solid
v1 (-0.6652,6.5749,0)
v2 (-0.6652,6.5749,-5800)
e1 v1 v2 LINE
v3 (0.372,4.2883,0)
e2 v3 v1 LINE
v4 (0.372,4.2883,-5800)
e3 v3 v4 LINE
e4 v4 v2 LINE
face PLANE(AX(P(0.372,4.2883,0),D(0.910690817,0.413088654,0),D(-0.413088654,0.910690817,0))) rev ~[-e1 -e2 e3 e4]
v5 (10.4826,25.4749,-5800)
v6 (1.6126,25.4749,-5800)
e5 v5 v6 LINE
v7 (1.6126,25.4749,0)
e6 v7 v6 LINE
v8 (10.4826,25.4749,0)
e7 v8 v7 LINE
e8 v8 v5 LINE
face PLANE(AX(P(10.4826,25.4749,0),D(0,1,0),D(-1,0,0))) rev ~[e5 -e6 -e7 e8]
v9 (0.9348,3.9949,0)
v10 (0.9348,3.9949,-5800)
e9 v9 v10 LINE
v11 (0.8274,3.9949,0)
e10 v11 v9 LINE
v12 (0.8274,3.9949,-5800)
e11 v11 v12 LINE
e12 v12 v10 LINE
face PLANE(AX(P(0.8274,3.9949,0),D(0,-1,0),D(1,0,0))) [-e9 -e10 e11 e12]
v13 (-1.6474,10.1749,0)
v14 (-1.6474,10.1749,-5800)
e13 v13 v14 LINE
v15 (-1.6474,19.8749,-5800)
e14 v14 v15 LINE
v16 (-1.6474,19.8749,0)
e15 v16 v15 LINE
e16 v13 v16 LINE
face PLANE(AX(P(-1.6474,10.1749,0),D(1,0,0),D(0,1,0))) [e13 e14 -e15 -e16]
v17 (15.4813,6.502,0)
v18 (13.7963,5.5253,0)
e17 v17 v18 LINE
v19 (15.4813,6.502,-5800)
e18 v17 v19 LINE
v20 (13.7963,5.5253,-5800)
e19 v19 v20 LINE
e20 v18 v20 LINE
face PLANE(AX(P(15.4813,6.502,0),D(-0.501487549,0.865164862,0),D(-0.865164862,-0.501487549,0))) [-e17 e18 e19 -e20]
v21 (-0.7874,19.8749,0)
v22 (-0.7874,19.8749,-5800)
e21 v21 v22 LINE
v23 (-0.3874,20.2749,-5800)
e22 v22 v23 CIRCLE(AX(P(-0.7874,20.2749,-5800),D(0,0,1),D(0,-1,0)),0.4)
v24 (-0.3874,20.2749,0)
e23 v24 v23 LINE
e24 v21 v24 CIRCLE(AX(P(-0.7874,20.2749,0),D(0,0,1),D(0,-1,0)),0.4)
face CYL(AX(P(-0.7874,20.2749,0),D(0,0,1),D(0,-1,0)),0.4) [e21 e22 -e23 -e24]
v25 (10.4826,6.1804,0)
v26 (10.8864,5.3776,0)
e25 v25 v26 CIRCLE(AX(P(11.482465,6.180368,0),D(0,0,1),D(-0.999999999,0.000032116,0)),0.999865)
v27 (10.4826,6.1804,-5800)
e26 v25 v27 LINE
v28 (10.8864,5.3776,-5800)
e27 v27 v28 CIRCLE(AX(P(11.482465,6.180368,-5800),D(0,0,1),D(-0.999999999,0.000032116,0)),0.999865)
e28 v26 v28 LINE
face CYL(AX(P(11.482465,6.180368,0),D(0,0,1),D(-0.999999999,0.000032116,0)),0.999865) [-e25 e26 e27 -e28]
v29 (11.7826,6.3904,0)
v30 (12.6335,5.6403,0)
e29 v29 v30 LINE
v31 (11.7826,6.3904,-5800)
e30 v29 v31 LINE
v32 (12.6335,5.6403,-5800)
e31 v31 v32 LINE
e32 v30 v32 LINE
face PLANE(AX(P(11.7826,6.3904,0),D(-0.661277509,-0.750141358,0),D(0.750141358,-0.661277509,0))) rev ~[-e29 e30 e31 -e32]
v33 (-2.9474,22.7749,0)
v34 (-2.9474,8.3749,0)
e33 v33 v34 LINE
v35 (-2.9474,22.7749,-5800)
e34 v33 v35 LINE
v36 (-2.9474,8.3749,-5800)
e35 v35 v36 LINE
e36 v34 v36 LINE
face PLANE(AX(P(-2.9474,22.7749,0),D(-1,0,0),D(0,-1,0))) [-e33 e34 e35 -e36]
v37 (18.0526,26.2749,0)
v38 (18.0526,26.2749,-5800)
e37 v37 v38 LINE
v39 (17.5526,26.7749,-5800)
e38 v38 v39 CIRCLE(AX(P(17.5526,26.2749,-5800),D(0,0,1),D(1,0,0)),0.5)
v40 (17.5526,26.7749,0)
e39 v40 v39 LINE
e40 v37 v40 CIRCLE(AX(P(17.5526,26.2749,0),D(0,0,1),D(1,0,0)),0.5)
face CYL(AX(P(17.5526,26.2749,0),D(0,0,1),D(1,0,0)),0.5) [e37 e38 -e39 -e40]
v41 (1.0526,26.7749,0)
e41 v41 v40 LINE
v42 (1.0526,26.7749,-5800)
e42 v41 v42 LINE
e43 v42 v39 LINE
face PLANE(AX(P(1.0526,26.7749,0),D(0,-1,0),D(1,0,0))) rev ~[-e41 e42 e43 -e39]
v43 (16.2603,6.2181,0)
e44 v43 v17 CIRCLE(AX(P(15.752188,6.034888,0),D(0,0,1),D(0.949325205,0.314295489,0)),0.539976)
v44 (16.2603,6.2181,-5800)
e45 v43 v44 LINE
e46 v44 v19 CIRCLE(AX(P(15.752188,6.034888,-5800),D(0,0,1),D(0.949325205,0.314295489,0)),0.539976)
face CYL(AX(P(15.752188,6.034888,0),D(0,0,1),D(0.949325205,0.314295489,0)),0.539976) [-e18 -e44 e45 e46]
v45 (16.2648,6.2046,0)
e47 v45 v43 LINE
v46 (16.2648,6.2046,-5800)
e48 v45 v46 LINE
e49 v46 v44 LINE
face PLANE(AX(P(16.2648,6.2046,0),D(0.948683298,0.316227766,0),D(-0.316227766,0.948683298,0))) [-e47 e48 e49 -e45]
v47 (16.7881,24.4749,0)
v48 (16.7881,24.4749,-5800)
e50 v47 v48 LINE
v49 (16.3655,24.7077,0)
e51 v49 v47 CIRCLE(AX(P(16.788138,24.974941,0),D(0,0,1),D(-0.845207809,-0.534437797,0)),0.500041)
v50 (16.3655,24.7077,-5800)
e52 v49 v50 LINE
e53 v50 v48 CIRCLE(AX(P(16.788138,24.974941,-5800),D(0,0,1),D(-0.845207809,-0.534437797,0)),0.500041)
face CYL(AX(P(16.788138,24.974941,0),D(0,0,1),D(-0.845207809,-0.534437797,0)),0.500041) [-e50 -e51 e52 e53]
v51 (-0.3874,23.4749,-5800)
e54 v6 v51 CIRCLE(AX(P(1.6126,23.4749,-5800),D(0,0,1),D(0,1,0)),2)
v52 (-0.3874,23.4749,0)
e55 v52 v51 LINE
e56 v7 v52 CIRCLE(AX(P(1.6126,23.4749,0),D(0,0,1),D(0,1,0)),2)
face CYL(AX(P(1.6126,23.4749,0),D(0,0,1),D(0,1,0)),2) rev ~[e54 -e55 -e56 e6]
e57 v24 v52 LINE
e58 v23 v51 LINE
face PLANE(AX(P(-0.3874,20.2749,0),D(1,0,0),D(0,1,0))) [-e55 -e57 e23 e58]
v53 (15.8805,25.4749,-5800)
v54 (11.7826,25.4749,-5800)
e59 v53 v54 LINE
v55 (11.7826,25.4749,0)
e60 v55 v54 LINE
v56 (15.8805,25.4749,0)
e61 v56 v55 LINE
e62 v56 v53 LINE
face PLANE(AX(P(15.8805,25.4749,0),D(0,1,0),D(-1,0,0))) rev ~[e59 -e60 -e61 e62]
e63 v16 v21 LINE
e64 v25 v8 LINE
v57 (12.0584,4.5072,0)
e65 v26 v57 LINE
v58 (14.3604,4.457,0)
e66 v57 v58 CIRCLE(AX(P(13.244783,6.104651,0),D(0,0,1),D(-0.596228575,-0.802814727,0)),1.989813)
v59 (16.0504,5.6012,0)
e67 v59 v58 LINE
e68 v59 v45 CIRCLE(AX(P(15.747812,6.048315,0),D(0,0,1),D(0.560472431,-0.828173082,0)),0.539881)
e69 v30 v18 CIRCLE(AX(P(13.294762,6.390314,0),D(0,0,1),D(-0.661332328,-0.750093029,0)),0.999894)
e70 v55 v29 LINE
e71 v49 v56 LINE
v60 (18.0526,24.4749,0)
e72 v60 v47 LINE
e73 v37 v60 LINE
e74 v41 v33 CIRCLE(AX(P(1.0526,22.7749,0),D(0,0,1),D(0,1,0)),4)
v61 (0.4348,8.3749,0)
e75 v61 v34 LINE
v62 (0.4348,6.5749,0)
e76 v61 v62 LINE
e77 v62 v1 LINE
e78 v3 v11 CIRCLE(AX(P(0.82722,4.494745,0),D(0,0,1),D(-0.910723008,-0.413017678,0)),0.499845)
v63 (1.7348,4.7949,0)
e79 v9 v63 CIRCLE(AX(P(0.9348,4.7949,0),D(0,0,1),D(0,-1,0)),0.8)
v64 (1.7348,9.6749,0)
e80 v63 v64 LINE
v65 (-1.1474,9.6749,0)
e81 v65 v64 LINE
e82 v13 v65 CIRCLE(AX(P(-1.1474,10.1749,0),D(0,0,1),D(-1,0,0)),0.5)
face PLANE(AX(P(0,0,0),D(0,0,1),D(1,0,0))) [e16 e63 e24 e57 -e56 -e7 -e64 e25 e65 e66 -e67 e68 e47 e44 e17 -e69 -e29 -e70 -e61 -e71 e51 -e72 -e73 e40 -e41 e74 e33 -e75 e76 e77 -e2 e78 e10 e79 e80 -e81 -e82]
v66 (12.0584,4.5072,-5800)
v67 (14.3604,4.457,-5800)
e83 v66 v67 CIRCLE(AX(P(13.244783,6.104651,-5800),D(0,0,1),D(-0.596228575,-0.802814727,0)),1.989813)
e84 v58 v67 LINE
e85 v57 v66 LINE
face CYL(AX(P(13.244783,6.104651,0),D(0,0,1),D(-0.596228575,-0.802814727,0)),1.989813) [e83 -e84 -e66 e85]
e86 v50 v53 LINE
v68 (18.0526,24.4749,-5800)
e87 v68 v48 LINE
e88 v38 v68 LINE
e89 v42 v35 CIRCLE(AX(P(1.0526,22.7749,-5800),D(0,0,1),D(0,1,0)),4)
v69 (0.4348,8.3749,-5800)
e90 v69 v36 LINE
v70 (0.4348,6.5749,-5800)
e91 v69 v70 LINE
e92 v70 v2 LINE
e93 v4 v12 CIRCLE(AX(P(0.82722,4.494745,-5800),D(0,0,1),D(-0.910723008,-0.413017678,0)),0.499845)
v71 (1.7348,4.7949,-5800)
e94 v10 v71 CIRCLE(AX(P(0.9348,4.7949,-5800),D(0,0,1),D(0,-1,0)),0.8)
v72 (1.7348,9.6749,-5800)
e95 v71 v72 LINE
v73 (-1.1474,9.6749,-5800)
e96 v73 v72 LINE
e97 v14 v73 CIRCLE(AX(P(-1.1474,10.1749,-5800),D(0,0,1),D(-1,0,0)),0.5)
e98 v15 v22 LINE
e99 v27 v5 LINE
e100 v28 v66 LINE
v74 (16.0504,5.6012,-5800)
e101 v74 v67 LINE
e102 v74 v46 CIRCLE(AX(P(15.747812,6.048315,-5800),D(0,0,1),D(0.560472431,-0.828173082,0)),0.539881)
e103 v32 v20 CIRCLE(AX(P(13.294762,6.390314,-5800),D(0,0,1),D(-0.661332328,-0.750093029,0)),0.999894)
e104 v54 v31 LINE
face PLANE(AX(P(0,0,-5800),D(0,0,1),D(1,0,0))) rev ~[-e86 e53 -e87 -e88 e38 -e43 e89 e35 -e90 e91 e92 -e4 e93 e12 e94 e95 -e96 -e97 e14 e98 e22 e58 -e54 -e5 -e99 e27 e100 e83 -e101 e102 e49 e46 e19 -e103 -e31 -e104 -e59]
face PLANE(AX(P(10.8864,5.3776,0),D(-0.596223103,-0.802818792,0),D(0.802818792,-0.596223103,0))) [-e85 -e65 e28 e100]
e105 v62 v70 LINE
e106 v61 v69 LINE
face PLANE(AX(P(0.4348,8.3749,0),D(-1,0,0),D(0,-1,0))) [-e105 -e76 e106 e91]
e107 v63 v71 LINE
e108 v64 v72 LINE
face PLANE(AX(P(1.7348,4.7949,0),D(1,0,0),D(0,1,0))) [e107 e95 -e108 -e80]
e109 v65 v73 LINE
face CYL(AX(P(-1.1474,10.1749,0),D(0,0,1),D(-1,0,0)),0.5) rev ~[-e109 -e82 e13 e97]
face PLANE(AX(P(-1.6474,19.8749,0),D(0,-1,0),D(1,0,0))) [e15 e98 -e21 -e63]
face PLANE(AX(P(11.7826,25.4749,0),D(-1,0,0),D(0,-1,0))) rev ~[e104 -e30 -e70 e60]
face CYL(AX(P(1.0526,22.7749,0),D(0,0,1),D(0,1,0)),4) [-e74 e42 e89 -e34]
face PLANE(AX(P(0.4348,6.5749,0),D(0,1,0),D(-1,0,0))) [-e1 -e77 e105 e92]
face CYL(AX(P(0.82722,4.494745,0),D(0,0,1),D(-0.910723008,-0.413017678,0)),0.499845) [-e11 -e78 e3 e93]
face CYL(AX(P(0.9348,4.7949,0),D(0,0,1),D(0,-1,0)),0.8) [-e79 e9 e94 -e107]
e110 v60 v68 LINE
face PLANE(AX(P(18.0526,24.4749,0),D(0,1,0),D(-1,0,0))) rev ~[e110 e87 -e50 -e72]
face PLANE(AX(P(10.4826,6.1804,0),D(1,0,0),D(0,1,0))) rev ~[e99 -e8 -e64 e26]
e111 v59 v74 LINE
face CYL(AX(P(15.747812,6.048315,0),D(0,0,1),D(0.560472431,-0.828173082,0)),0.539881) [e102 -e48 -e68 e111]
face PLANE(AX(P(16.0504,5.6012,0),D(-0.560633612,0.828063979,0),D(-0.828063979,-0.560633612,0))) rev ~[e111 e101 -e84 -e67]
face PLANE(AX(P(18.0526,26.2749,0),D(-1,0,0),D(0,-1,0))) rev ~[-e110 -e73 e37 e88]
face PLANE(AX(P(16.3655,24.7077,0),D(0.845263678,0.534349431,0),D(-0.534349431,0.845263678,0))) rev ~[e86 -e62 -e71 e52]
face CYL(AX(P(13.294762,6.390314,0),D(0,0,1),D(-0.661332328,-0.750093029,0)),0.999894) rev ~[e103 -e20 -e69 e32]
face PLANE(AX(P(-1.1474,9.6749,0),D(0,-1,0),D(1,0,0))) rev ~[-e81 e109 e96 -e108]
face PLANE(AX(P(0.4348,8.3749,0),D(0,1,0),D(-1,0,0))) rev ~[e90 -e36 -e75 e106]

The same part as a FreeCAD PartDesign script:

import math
import FreeCAD as App
import Part
import Sketcher

V = App.Vector
Q = App.Units.Quantity

doc = App.newDocument("Part")
body = doc.addObject("PartDesign::Body", "Body")

# Sketch on XY plane
sketch1 = body.newObject("Sketcher::SketchObject", "Sketch")
sketch1.AttachmentSupport = (doc.getObject("XY_Plane"), [""])
sketch1.MapMode = "FlatFace"
sketch1.addGeometry([
    Part.ArcOfCircle(Part.Circle(V(-1.147, 10.175, 0), V(0, 0, 1), 0.5), math.radians(180), math.radians(270)),  # 0
    Part.LineSegment(V(-1.647, 10.175, 0), V(-1.647, 19.875, 0)),  # 1
    Part.LineSegment(V(-1.647, 19.875, 0), V(-0.787, 19.875, 0)),  # 2
    Part.ArcOfCircle(Part.Circle(V(-0.787, 20.275, 0), V(0, 0, 1), 0.4), math.radians(-90), math.radians(0)),  # 3
    Part.LineSegment(V(-0.387, 20.275, 0), V(-0.387, 23.475, 0)),  # 4
    Part.ArcOfCircle(Part.Circle(V(1.613, 23.475, 0), V(0, 0, 1), 2), math.radians(90), math.radians(180)),  # 5
    Part.LineSegment(V(1.613, 25.475, 0), V(10.483, 25.475, 0)),  # 6
    Part.LineSegment(V(10.483, 25.475, 0), V(10.483, 6.18, 0)),  # 7
    Part.ArcOfCircle(Part.Circle(V(11.483, 6.18, 0), V(0, 0, 1), 1), math.radians(180), math.radians(233)),  # 8
    Part.LineSegment(V(10.886, 5.378, 0), V(12.058, 4.507, 0)),  # 9
    Part.ArcOfCircle(Part.Circle(V(13.245, 6.105, 0), V(0, 0, 1), 1.99), math.radians(-127), math.radians(-56)),  # 10
    Part.LineSegment(V(14.36, 4.457, 0), V(16.05, 5.601, 0)),  # 11
    Part.ArcOfCircle(Part.Circle(V(15.748, 6.048, 0), V(0, 0, 1), 0.54), math.radians(-56), math.radians(17)),  # 12
    Part.LineSegment(V(16.265, 6.205, 0), V(16.26, 6.218, 0)),  # 13
    Part.ArcOfCircle(Part.Circle(V(15.752, 6.035, 0), V(0, 0, 1), 0.54), math.radians(20), math.radians(120)),  # 14
    Part.LineSegment(V(15.481, 6.502, 0), V(13.796, 5.525, 0)),  # 15
    Part.ArcOfCircle(Part.Circle(V(13.295, 6.39, 0), V(0, 0, 1), 1), math.radians(-131), math.radians(-60)),  # 16
    Part.LineSegment(V(12.633, 5.64, 0), V(11.783, 6.39, 0)),  # 17
    Part.LineSegment(V(11.783, 6.39, 0), V(11.783, 25.475, 0)),  # 18
    Part.LineSegment(V(11.783, 25.475, 0), V(15.88, 25.475, 0)),  # 19
    Part.LineSegment(V(15.88, 25.475, 0), V(16.366, 24.708, 0)),  # 20
    Part.ArcOfCircle(Part.Circle(V(16.788, 24.975, 0), V(0, 0, 1), 0.5), math.radians(-148), math.radians(-90)),  # 21
    Part.LineSegment(V(16.788, 24.475, 0), V(18.053, 24.475, 0)),  # 22
    Part.LineSegment(V(18.053, 24.475, 0), V(18.053, 26.275, 0)),  # 23
    Part.ArcOfCircle(Part.Circle(V(17.553, 26.275, 0), V(0, 0, 1), 0.5), math.radians(0), math.radians(90)),  # 24
    Part.LineSegment(V(17.553, 26.775, 0), V(1.053, 26.775, 0)),  # 25
    Part.ArcOfCircle(Part.Circle(V(1.053, 22.775, 0), V(0, 0, 1), 4), math.radians(90), math.radians(180)),  # 26
    Part.LineSegment(V(-2.947, 22.775, 0), V(-2.947, 8.375, 0)),  # 27
    Part.LineSegment(V(-2.947, 8.375, 0), V(0.435, 8.375, 0)),  # 28
    Part.LineSegment(V(0.435, 8.375, 0), V(0.435, 6.575, 0)),  # 29
    Part.LineSegment(V(0.435, 6.575, 0), V(-0.665, 6.575, 0)),  # 30
    Part.LineSegment(V(-0.665, 6.575, 0), V(0.372, 4.288, 0)),  # 31
    Part.ArcOfCircle(Part.Circle(V(0.827, 4.495, 0), V(0, 0, 1), 0.5), math.radians(-156), math.radians(-90)),  # 32
    Part.LineSegment(V(0.827, 3.995, 0), V(0.935, 3.995, 0)),  # 33
    Part.ArcOfCircle(Part.Circle(V(0.935, 4.795, 0), V(0, 0, 1), 0.8), math.radians(-90), math.radians(0)),  # 34
    Part.LineSegment(V(1.735, 4.795, 0), V(1.735, 9.675, 0)),  # 35
    Part.LineSegment(V(1.735, 9.675, 0), V(-1.147, 9.675, 0)),  # 36
], False)
sketch1.addConstraint([
    Sketcher.Constraint("Tangent", 0, 1, 1, 1),
    Sketcher.Constraint("Coincident", 1, 2, 2, 1),
    Sketcher.Constraint("Tangent", 2, 2, 3, 1),
    Sketcher.Constraint("Tangent", 3, 2, 4, 1),
    Sketcher.Constraint("Tangent", 4, 2, 5, 2),
    Sketcher.Constraint("Tangent", 5, 1, 6, 1),
    Sketcher.Constraint("Coincident", 6, 2, 7, 1),
    Sketcher.Constraint("Tangent", 7, 2, 8, 1),
    Sketcher.Constraint("Tangent", 8, 2, 9, 1),
    Sketcher.Constraint("Tangent", 9, 2, 10, 1),
    Sketcher.Constraint("Tangent", 10, 2, 11, 1),
    Sketcher.Constraint("Tangent", 11, 2, 12, 1),
    Sketcher.Constraint("Coincident", 12, 2, 13, 1),
    Sketcher.Constraint("Coincident", 13, 2, 14, 1),
    Sketcher.Constraint("Tangent", 14, 2, 15, 1),
    Sketcher.Constraint("Tangent", 15, 2, 16, 2),
    Sketcher.Constraint("Tangent", 16, 1, 17, 1),
    Sketcher.Constraint("Coincident", 17, 2, 18, 1),
    Sketcher.Constraint("Coincident", 18, 2, 19, 1),
    Sketcher.Constraint("Coincident", 19, 2, 20, 1),
    Sketcher.Constraint("Tangent", 20, 2, 21, 1),
    Sketcher.Constraint("Tangent", 21, 2, 22, 1),
    Sketcher.Constraint("Coincident", 22, 2, 23, 1),
    Sketcher.Constraint("Tangent", 23, 2, 24, 1),
    Sketcher.Constraint("Tangent", 24, 2, 25, 1),
    Sketcher.Constraint("Tangent", 25, 2, 26, 1),
    Sketcher.Constraint("Tangent", 26, 2, 27, 1),
    Sketcher.Constraint("Coincident", 27, 2, 28, 1),
    Sketcher.Constraint("Coincident", 28, 2, 29, 1),
    Sketcher.Constraint("Coincident", 29, 2, 30, 1),
    Sketcher.Constraint("Coincident", 30, 2, 31, 1),
    Sketcher.Constraint("Tangent", 31, 2, 32, 1),
    Sketcher.Constraint("Tangent", 32, 2, 33, 1),
    Sketcher.Constraint("Tangent", 33, 2, 34, 1),
    Sketcher.Constraint("Tangent", 34, 2, 35, 1),
    Sketcher.Constraint("Coincident", 35, 2, 36, 1),
    Sketcher.Constraint("Tangent", 36, 2, 0, 2),
    Sketcher.Constraint("Vertical", 1),
    Sketcher.Constraint("Horizontal", 2),
    Sketcher.Constraint("Vertical", 4),
    Sketcher.Constraint("Horizontal", 6),
    Sketcher.Constraint("Vertical", 7),
    Sketcher.Constraint("Vertical", 18),
    Sketcher.Constraint("Horizontal", 19),
    Sketcher.Constraint("Horizontal", 22),
    Sketcher.Constraint("Vertical", 23),
    Sketcher.Constraint("Horizontal", 25),
    Sketcher.Constraint("Vertical", 27),
    Sketcher.Constraint("Horizontal", 28),
    Sketcher.Constraint("Vertical", 29),
    Sketcher.Constraint("Horizontal", 30),
    Sketcher.Constraint("Horizontal", 33),
    Sketcher.Constraint("Vertical", 35),
    Sketcher.Constraint("Horizontal", 36),
    Sketcher.Constraint("Equal", 12, 14),
    Sketcher.Constraint("Equal", 8, 16),
    Sketcher.Constraint("Equal", 0, 21),
    Sketcher.Constraint("Equal", 21, 24),
    Sketcher.Constraint("Equal", 24, 32),
    Sketcher.Constraint("Horizontal", 16, 3, 17, 2),
    Sketcher.Constraint("Horizontal", 6, 2, 18, 2),
    Sketcher.Constraint("Equal", 23, 29),
    Sketcher.Constraint("Radius", 5, 2.0),
    Sketcher.Constraint("Radius", 8, 1.0),
    Sketcher.Constraint("Radius", 26, 4.0),
    Sketcher.Constraint("Radius", 0, 0.5),
    Sketcher.Constraint("Radius", 3, 0.4),
    Sketcher.Constraint("Radius", 34, 0.8),
    Sketcher.Constraint("Radius", 12, 0.54),
    Sketcher.Constraint("DistanceX", 30, 2, 30, 1, 1.1),
    Sketcher.Constraint("DistanceY", 23, 1, 23, 2, 1.8),
    Sketcher.Constraint("Angle", 9, Q("-36.5999 deg")),
    Sketcher.Constraint("Angle", 11, Q("34.0996 deg")),
    Sketcher.Constraint("Angle", 20, Q("-57.7002 deg")),
    Sketcher.Constraint("DistanceY", 21, 2, 19, 2, 1.0),
    Sketcher.Constraint("DistanceX", 7, 2, 17, 2, 1.3),
    Sketcher.Constraint("DistanceX", 26, 2, 1, 2, 1.3),
    Sketcher.Constraint("DistanceY", 27, 2, 0, 1, 1.8),
    Sketcher.Constraint("DistanceX", 28, 2, 34, 3, 0.5),
    Sketcher.Constraint("DistanceX", 10, 3, 16, 3, 0.05),
    Sketcher.Constraint("DistanceY", 16, 1, 8, 3, 0.54),
    Sketcher.Constraint("DistanceX", 26, 2, 4, 2, 2.56),
    Sketcher.Constraint("DistanceX", 25, 2, 25, 1, 16.5),
    Sketcher.Constraint("DistanceY", 1, 1, 1, 2, 9.7),
    Sketcher.Constraint("DistanceY", 4, 1, 4, 2, 3.2),
    Sketcher.Constraint("DistanceY", -1, 1, 21, 2, 24.475),
    Sketcher.Constraint("Angle", 31, Q("-65.601 deg")),
    Sketcher.Constraint("DistanceX", 6, 1, 6, 2, 8.87),
    Sketcher.Constraint("DistanceY", 35, 1, 35, 2, 4.88),
    Sketcher.Constraint("DistanceX", -1, 1, 22, 2, 18.0526),
    Sketcher.Constraint("Radius", 10, 1.9899),
    Sketcher.Constraint("DistanceX", 14, 3, 24, 3, 1.8004),
    Sketcher.Constraint("DistanceX", 10, 2, 13, 2, 1.9),
    Sketcher.Constraint("DistanceX", 19, 1, 19, 2, 4.098),
    Sketcher.Constraint("DistanceY", 14, 3, 0, 3, 4.14),
    Sketcher.Constraint("DistanceY", 8, 3, 16, 3, 0.21),
    Sketcher.Constraint("DistanceX", 34, 3, 10, 3, 12.31),
    Sketcher.Constraint("DistanceX", 10, 2, 11, 2, 1.69),
    Sketcher.Constraint("DistanceY", 7, 2, 7, 1, 19.2945),
    Sketcher.Constraint("DistanceX", 12, 3, 12, 2, 0.517),
])
pad1 = body.newObject("PartDesign::Pad", "Pad")
pad1.Profile = sketch1
pad1.Length = 5800
pad1.Reversed = True

doc.recompute()
